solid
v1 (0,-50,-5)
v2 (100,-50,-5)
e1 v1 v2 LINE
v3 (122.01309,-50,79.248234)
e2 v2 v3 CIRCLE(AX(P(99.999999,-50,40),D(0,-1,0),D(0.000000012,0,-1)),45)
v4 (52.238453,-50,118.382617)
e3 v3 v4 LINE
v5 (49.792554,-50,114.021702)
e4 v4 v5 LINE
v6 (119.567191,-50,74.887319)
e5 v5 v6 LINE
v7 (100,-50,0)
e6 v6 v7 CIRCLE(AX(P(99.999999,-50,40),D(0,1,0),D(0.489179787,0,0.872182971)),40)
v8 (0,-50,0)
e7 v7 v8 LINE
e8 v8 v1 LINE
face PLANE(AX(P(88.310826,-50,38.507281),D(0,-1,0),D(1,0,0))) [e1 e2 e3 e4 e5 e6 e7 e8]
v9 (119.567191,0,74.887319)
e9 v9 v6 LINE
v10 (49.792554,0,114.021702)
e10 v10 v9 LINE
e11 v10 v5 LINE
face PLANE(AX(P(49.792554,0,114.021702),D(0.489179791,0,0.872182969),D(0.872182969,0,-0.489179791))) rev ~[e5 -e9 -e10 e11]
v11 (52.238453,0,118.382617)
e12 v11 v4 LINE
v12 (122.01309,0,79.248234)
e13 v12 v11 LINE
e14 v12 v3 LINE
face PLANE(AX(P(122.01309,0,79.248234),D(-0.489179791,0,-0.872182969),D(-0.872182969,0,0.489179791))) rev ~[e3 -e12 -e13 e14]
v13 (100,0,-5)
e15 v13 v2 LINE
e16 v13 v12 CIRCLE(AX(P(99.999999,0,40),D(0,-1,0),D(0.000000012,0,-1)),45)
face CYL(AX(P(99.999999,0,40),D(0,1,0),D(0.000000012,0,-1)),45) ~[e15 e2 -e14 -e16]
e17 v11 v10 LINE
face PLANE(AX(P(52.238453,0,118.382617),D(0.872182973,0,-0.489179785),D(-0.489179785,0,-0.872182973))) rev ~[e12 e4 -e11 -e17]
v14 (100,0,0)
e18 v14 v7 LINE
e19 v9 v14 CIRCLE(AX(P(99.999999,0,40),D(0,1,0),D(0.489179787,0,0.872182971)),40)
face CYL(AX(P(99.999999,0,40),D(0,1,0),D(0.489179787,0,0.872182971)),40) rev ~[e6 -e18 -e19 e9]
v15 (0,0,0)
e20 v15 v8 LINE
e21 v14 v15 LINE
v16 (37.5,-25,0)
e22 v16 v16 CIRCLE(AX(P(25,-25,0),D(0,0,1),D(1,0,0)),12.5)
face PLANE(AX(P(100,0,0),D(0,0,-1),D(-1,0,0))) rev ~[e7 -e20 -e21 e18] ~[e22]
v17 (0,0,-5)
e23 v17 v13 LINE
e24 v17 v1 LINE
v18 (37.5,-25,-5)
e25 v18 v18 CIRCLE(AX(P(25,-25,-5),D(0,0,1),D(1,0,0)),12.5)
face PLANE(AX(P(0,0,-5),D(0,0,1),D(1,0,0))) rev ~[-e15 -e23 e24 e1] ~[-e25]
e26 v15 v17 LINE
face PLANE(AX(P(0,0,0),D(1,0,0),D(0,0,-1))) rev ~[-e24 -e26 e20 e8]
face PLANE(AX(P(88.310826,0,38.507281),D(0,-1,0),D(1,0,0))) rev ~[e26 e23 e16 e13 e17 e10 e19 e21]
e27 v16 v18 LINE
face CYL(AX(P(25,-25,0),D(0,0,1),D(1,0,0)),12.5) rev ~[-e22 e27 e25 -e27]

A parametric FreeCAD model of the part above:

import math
import FreeCAD as App
import Part
import Sketcher
from FreeCAD import Vector

doc = App.newDocument("Part")
params = doc.addObject("Spreadsheet::Sheet", "Params")
for row, (alias, value) in enumerate([
    ("sketch1_radius", "45 mm"),
    ("sketch1_radius2", "40 mm"),
    ("sketch1_width", "100 mm"),
    ("sketch1_length", "79.999999 mm"),
    ("pad1_length", "50 mm"),
    ("sketch2_diameter", "25 mm"),
], start=1):
    params.set(f"A{row}", alias)
    params.set(f"B{row}", "=" + value)
    params.setAlias(f"B{row}", alias)

body = doc.addObject("PartDesign::Body", "Body")

# Sketch on XZ plane
sketch1 = doc.addObject("Sketcher::SketchObject", "Sketch")
body.addObject(sketch1)
sketch1.AttachmentSupport = (doc.XZ_Plane, [""])
sketch1.MapMode = "FlatFace"
sketch1.addGeometry([
    Part.LineSegment(Vector(100, 0, 0), Vector(0, 0, 0)),  # 0
    Part.LineSegment(Vector(0, 0, 0), Vector(0, -5, 0)),  # 1
    Part.LineSegment(Vector(0, -5, 0), Vector(100, -5, 0)),  # 2
    Part.ArcOfCircle(Part.Circle(Vector(100, 40, 0), Vector(0, 0, 1), 45), math.radians(-90), math.radians(61)),  # 3
    Part.LineSegment(Vector(122, 79, 0), Vector(52, 118, 0)),  # 4
    Part.LineSegment(Vector(52, 118, 0), Vector(50, 114, 0)),  # 5
    Part.LineSegment(Vector(50, 114, 0), Vector(120, 75, 0)),  # 6
    Part.ArcOfCircle(Part.Circle(Vector(100, 40, 0), Vector(0, 0, 1), 40), math.radians(-90), math.radians(61)),  # 7
], False)
sketch1.addConstraint([
    Sketcher.Constraint("Coincident", 0, 2, 1, 1),
    Sketcher.Constraint("Coincident", 1, 2, 2, 1),
    Sketcher.Constraint("Tangent", 2, 2, 3, 1),
    Sketcher.Constraint("Tangent", 3, 2, 4, 1),
    Sketcher.Constraint("Coincident", 4, 2, 5, 1),
    Sketcher.Constraint("Coincident", 5, 2, 6, 1),
    Sketcher.Constraint("Tangent", 6, 2, 7, 2),
    Sketcher.Constraint("Tangent", 7, 1, 0, 1),
    Sketcher.Constraint("Horizontal", 0),
    Sketcher.Constraint("Vertical", 1),
    Sketcher.Constraint("Horizontal", 2),
    Sketcher.Constraint("Coincident", 0, 2, -1, 1),
    Sketcher.Constraint("Coincident", 7, 3, 3, 3),
    Sketcher.Constraint("Perpendicular", 4, 5),
    Sketcher.Constraint("Perpendicular", 5, 6),
    Sketcher.Constraint("Radius", 3, 45.0),
    Sketcher.Constraint("Radius", 7, 40.0),
    Sketcher.Constraint("DistanceX", 0, 2, 0, 1, 100.0),
    Sketcher.Constraint("Distance", 4, 79.999999),
    Sketcher.Constraint("DistanceX", 5, 2, 4, 2, 2.445899),
])
sketch1.setExpression("Constraints[15]", "Params.sketch1_radius")
sketch1.setExpression("Constraints[16]", "Params.sketch1_radius2")
sketch1.setExpression("Constraints[17]", "Params.sketch1_width")
sketch1.setExpression("Constraints[18]", "Params.sketch1_length")
pad1 = doc.addObject("PartDesign::Pad", "Pad")
body.addObject(pad1)
pad1.Profile = sketch1
pad1.setExpression("Length", "Params.pad1_length")

# Sketch on XY plane
sketch2 = doc.addObject("Sketcher::SketchObject", "Sketch001")
body.addObject(sketch2)
sketch2.AttachmentSupport = (doc.XY_Plane, [""])
sketch2.MapMode = "FlatFace"
sketch2.addGeometry(Part.Circle(Vector(25, -25, 0), Vector(0, 0, 1), 12), False)
sketch2.addConstraint([
    Sketcher.Constraint("Diameter", 0, 25.0),
    Sketcher.Constraint("DistanceX", -1, 1, 0, 3, 25.0),
    Sketcher.Constraint("DistanceY", 0, 3, -1, 1, 25.0),
])
sketch2.setExpression("Constraints[0]", "Params.sketch2_diameter")
pocket1 = doc.addObject("PartDesign::Pocket", "Pocket")
body.addObject(pocket1)
pocket1.Profile = sketch2
pocket1.Type = "ThroughAll"

doc.recompute()
